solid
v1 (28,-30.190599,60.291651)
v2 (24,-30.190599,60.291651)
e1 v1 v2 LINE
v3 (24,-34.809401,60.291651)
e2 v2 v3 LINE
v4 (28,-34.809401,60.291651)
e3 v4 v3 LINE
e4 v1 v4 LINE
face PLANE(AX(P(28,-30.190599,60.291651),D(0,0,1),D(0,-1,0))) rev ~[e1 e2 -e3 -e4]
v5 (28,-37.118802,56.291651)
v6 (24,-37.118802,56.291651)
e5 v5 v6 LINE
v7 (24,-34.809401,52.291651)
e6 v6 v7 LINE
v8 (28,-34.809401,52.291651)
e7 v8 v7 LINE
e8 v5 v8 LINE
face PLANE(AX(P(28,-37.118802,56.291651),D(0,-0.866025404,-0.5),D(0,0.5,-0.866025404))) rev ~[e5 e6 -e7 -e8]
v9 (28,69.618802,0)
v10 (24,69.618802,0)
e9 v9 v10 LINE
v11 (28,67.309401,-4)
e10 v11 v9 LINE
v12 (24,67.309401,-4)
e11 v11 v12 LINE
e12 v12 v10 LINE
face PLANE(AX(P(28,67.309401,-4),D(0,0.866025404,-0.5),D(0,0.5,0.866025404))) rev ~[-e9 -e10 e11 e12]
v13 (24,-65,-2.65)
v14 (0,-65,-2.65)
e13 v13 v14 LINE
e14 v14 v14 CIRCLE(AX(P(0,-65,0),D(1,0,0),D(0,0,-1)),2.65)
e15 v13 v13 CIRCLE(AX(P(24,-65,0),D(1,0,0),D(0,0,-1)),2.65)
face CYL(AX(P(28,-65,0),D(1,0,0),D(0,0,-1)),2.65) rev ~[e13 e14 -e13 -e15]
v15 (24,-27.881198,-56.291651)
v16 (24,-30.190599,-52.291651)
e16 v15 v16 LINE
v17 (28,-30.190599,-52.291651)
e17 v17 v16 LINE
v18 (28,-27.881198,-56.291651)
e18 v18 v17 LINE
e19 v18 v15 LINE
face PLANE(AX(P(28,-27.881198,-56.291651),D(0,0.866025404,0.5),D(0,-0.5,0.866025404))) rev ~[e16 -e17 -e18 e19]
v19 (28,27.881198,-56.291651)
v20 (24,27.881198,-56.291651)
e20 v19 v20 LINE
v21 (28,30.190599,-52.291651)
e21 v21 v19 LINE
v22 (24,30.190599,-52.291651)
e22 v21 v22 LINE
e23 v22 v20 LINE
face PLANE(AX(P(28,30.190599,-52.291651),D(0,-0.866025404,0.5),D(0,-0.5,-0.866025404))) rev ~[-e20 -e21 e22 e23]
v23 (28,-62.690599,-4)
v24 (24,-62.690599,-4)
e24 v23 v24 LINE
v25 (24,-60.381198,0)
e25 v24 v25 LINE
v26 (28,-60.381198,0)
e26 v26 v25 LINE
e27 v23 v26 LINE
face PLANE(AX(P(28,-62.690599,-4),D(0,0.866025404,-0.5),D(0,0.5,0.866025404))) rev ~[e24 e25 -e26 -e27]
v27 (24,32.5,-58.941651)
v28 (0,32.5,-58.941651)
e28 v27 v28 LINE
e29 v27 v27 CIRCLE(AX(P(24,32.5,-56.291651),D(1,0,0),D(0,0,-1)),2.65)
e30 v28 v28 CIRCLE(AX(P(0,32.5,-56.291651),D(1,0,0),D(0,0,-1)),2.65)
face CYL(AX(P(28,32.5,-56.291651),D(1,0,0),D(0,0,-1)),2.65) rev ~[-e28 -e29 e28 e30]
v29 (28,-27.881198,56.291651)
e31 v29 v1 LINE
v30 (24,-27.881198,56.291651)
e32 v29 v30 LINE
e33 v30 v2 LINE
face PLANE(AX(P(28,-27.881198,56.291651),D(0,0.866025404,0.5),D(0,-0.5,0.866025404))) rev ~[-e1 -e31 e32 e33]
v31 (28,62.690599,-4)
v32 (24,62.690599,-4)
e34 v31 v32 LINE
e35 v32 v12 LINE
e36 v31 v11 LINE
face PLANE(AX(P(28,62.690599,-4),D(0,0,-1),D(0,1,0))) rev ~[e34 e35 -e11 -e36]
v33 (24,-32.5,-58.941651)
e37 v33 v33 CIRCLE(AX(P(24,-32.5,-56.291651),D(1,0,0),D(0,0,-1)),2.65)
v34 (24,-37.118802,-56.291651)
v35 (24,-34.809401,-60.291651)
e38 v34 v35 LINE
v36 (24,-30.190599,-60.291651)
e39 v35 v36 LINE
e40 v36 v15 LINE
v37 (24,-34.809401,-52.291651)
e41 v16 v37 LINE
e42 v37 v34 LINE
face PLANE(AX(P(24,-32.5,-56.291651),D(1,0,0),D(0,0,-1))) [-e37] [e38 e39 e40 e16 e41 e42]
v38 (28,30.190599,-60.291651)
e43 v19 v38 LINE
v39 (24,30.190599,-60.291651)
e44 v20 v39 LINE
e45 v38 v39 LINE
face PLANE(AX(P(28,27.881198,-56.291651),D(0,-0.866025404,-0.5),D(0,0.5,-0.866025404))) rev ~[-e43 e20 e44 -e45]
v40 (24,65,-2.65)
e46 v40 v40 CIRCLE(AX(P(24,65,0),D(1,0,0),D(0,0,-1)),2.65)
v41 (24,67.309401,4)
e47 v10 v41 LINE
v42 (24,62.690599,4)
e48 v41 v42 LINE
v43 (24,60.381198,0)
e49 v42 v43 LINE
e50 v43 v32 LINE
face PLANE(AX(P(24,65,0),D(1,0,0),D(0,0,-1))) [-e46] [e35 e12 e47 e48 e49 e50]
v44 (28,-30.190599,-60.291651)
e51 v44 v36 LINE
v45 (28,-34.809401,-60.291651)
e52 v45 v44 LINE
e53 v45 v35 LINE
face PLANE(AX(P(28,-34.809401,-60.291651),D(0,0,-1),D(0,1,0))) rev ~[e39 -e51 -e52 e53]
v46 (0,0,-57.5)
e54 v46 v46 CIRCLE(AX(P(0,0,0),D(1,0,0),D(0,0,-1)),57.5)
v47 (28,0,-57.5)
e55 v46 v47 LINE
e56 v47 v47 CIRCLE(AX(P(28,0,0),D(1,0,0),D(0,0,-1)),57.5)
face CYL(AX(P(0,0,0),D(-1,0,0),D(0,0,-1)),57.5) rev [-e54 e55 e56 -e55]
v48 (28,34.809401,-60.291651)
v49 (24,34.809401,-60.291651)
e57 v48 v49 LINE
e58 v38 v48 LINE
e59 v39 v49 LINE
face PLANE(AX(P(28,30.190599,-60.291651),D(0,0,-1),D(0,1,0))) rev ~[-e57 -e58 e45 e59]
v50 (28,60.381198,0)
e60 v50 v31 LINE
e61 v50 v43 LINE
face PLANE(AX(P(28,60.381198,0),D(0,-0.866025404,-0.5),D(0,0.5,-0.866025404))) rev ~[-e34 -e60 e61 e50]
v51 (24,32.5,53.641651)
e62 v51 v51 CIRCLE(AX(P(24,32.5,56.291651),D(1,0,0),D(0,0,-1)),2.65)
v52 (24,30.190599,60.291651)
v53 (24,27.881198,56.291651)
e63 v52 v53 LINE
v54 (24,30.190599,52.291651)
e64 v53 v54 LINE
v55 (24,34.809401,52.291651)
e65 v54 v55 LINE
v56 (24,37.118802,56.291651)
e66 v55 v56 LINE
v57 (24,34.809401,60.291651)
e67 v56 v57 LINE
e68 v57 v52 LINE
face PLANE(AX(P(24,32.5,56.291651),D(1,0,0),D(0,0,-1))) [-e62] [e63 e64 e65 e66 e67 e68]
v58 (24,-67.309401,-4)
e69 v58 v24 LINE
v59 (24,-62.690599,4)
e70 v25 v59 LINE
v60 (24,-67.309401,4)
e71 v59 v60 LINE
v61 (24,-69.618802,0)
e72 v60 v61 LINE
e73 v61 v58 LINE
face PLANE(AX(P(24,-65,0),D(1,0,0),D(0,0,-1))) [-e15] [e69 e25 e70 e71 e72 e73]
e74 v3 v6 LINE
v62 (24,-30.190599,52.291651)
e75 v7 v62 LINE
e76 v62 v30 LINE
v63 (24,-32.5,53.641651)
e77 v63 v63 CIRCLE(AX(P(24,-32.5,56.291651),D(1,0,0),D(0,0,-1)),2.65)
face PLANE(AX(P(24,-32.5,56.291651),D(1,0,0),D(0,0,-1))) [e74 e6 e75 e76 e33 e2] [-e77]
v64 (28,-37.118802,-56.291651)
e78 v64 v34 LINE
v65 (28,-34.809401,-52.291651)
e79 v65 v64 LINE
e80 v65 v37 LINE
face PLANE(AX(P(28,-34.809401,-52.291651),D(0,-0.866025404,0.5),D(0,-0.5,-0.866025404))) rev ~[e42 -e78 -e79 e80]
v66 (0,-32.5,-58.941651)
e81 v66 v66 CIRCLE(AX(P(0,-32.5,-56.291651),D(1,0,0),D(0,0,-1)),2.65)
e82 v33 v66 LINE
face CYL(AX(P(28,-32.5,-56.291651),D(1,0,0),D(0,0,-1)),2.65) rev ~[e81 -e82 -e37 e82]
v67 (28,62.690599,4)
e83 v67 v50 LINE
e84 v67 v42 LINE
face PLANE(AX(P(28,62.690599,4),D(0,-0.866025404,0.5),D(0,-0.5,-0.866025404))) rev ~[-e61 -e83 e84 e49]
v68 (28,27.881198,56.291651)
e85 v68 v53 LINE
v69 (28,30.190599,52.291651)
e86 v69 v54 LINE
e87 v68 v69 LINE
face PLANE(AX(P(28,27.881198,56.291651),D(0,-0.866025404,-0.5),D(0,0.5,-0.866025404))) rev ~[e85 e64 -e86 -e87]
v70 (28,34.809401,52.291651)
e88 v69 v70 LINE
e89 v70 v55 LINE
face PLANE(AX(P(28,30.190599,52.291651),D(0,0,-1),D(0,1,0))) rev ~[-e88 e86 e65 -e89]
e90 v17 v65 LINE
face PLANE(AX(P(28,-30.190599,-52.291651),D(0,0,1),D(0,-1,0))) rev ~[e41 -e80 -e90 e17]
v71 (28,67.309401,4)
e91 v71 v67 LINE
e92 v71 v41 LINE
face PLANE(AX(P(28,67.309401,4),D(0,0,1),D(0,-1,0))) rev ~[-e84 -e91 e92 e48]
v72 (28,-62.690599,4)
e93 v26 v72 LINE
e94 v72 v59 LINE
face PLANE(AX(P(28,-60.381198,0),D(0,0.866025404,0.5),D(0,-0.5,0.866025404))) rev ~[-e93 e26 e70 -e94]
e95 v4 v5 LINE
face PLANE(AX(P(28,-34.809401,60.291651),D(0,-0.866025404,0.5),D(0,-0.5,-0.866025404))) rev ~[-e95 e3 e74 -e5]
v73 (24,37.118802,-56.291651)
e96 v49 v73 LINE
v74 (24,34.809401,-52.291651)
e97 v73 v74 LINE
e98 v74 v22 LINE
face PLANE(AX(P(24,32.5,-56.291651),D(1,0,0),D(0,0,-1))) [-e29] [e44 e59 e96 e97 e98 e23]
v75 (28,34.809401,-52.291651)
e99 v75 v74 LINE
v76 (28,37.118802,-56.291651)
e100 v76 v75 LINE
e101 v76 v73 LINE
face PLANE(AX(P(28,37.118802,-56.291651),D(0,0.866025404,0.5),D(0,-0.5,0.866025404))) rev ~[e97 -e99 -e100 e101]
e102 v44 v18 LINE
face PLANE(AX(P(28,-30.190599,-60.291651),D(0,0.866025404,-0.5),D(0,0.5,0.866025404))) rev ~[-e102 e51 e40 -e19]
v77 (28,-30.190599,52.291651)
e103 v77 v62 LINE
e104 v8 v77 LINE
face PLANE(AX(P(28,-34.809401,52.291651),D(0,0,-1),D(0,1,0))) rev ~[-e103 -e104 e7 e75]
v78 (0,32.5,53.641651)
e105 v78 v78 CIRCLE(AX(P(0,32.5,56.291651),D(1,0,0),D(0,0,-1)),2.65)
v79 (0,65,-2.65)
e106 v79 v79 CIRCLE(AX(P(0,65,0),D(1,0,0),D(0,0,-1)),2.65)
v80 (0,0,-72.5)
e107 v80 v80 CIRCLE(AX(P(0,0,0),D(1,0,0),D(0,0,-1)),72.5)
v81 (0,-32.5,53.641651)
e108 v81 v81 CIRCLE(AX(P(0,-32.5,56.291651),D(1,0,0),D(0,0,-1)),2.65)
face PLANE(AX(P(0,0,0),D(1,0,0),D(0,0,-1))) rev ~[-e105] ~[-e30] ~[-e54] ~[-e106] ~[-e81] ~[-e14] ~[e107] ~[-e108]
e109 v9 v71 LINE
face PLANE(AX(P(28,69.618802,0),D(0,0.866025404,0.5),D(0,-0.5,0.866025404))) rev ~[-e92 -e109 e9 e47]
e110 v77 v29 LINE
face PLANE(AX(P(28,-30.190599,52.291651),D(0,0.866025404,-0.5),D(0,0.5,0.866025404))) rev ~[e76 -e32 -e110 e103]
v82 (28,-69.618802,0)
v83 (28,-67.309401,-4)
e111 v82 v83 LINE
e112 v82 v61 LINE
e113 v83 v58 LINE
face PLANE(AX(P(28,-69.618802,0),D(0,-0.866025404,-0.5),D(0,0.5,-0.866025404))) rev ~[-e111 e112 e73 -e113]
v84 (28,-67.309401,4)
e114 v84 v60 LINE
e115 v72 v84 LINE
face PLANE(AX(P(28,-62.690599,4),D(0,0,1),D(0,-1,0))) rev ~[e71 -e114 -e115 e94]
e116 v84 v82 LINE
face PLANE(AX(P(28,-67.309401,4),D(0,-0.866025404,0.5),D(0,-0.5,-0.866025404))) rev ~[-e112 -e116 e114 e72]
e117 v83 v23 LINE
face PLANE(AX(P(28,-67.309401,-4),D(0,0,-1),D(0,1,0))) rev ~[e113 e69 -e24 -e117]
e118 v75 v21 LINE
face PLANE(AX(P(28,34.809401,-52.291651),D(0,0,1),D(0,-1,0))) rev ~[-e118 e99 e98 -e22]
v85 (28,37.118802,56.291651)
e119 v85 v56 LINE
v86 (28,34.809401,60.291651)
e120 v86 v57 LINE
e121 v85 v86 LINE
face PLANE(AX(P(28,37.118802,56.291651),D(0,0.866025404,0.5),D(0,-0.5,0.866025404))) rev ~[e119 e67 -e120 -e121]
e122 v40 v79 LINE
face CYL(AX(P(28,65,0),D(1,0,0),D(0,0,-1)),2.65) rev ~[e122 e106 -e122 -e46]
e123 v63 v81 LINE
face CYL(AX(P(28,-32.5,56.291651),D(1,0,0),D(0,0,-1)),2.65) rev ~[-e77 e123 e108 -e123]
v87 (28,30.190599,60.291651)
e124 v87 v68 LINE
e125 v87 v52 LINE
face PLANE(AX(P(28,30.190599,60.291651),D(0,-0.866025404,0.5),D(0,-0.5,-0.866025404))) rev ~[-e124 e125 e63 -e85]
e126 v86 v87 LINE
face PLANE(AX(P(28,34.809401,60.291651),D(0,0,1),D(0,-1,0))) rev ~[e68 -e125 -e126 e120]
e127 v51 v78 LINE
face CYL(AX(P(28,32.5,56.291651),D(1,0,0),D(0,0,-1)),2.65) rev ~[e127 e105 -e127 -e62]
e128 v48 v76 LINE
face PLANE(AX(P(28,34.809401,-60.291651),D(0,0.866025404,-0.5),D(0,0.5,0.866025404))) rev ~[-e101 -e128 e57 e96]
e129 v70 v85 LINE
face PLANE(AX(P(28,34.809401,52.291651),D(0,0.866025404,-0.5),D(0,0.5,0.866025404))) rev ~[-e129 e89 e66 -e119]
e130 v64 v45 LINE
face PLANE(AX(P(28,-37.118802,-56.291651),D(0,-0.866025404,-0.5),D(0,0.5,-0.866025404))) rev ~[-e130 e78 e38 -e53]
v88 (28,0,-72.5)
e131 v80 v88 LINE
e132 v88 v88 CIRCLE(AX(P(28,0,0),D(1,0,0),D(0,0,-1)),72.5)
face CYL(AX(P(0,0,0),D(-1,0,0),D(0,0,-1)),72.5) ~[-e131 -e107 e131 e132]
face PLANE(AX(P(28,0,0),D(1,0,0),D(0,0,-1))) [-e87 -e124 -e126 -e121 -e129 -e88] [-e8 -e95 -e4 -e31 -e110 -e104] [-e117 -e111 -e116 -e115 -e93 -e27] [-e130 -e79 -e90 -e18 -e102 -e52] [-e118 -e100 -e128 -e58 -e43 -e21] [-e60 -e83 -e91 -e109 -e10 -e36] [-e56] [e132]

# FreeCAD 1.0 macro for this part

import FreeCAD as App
import Part
import Sketcher
Q = App.Units.Quantity

doc = App.newDocument("Part")
body = doc.addObject("PartDesign::Body", "Body")

# Sketch on YZ plane
sketch1 = doc.addObject("Sketcher::SketchObject", "Sketch")
body.addObject(sketch1)
sketch1.AttachmentSupport = (doc.YZ_Plane, [""])
sketch1.MapMode = "FlatFace"
sketch1.addGeometry([
    Part.Circle(App.Vector(0, 0, 0), App.Vector(0, 0, 1), 72.5),
    Part.Circle(App.Vector(0, 0, 0), App.Vector(0, 0, 1), 57.5),
], False)
sketch1.addConstraint([
    Sketcher.Constraint("Coincident", 0, 3, -1, 1),
    Sketcher.Constraint("Coincident", 1, 3, -1, 1),
    Sketcher.Constraint("Diameter", 0, 145.0),
    Sketcher.Constraint("Diameter", 1, 115.0),
])
pad1 = doc.addObject("PartDesign::Pad", "Pad")
body.addObject(pad1)
pad1.Profile = sketch1
pad1.Length = 28

# Sketch on YZ plane
sketch2 = doc.addObject("Sketcher::SketchObject", "Sketch001")
body.addObject(sketch2)
sketch2.AttachmentSupport = (doc.YZ_Plane, [""])
sketch2.MapMode = "FlatFace"
sketch2.AttachmentOffset = App.Placement(App.Vector(0, 0, 28), App.Rotation())
sketch2.addGeometry([
    Part.LineSegment(App.Vector(30.190599, -52.291651, 0), App.Vector(27.881198, -56.291651, 0)),  # 0
    Part.LineSegment(App.Vector(27.881198, -56.291651, 0), App.Vector(30.190599, -60.291651, 0)),  # 1
    Part.LineSegment(App.Vector(30.190599, -60.291651, 0), App.Vector(34.809401, -60.291651, 0)),  # 2
    Part.LineSegment(App.Vector(34.809401, -60.291651, 0), App.Vector(37.118802, -56.291651, 0)),  # 3
    Part.LineSegment(App.Vector(37.118802, -56.291651, 0), App.Vector(34.809401, -52.291651, 0)),  # 4
    Part.LineSegment(App.Vector(34.809401, -52.291651, 0), App.Vector(30.190599, -52.291651, 0)),  # 5
    Part.LineSegment(App.Vector(60.381198, 0, 0), App.Vector(62.690599, -4, 0)),  # 6
    Part.LineSegment(App.Vector(62.690599, -4, 0), App.Vector(67.309401, -4, 0)),  # 7
    Part.LineSegment(App.Vector(67.309401, -4, 0), App.Vector(69.618802, 0, 0)),  # 8
    Part.LineSegment(App.Vector(69.618802, 0, 0), App.Vector(67.309401, 4, 0)),  # 9
    Part.LineSegment(App.Vector(67.309401, 4, 0), App.Vector(62.690599, 4, 0)),  # 10
    Part.LineSegment(App.Vector(62.690599, 4, 0), App.Vector(60.381198, 0, 0)),  # 11
    Part.LineSegment(App.Vector(-30.190599, -52.291651, 0), App.Vector(-34.809401, -52.291651, 0)),  # 12
    Part.LineSegment(App.Vector(-34.809401, -52.291651, 0), App.Vector(-37.118802, -56.291651, 0)),  # 13
    Part.LineSegment(App.Vector(-37.118802, -56.291651, 0), App.Vector(-34.809401, -60.291651, 0)),  # 14
    Part.LineSegment(App.Vector(-34.809401, -60.291651, 0), App.Vector(-30.190599, -60.291651, 0)),  # 15
    Part.LineSegment(App.Vector(-30.190599, -60.291651, 0), App.Vector(-27.881198, -56.291651, 0)),  # 16
    Part.LineSegment(App.Vector(-27.881198, -56.291651, 0), App.Vector(-30.190599, -52.291651, 0)),  # 17
    Part.LineSegment(App.Vector(-60.381198, 0, 0), App.Vector(-62.690599, 4, 0)),  # 18
    Part.LineSegment(App.Vector(-62.690599, 4, 0), App.Vector(-67.309401, 4, 0)),  # 19
    Part.LineSegment(App.Vector(-67.309401, 4, 0), App.Vector(-69.618802, 0, 0)),  # 20
    Part.LineSegment(App.Vector(-69.618802, 0, 0), App.Vector(-67.309401, -4, 0)),  # 21
    Part.LineSegment(App.Vector(-67.309401, -4, 0), App.Vector(-62.690599, -4, 0)),  # 22
    Part.LineSegment(App.Vector(-62.690599, -4, 0), App.Vector(-60.381198, 0, 0)),  # 23
    Part.LineSegment(App.Vector(-30.190599, 52.291651, 0), App.Vector(-27.881198, 56.291651, 0)),  # 24
    Part.LineSegment(App.Vector(-27.881198, 56.291651, 0), App.Vector(-30.190599, 60.291651, 0)),  # 25
    Part.LineSegment(App.Vector(-30.190599, 60.291651, 0), App.Vector(-34.809401, 60.291651, 0)),  # 26
    Part.LineSegment(App.Vector(-34.809401, 60.291651, 0), App.Vector(-37.118802, 56.291651, 0)),  # 27
    Part.LineSegment(App.Vector(-37.118802, 56.291651, 0), App.Vector(-34.809401, 52.291651, 0)),  # 28
    Part.LineSegment(App.Vector(-34.809401, 52.291651, 0), App.Vector(-30.190599, 52.291651, 0)),  # 29
    Part.LineSegment(App.Vector(30.190599, 52.291651, 0), App.Vector(34.809401, 52.291651, 0)),  # 30
    Part.LineSegment(App.Vector(34.809401, 52.291651, 0), App.Vector(37.118802, 56.291651, 0)),  # 31
    Part.LineSegment(App.Vector(37.118802, 56.291651, 0), App.Vector(34.809401, 60.291651, 0)),  # 32
    Part.LineSegment(App.Vector(34.809401, 60.291651, 0), App.Vector(30.190599, 60.291651, 0)),  # 33
    Part.LineSegment(App.Vector(30.190599, 60.291651, 0), App.Vector(27.881198, 56.291651, 0)),  # 34
    Part.LineSegment(App.Vector(27.881198, 56.291651, 0), App.Vector(30.190599, 52.291651, 0)),  # 35
], False)
sketch2.addConstraint([
    Sketcher.Constraint("Coincident", 0, 2, 1, 1),
    Sketcher.Constraint("Coincident", 1, 2, 2, 1),
    Sketcher.Constraint("Coincident", 2, 2, 3, 1),
    Sketcher.Constraint("Coincident", 3, 2, 4, 1),
    Sketcher.Constraint("Coincident", 4, 2, 5, 1),
    Sketcher.Constraint("Coincident", 5, 2, 0, 1),
    Sketcher.Constraint("Coincident", 6, 2, 7, 1),
    Sketcher.Constraint("Coincident", 7, 2, 8, 1),
    Sketcher.Constraint("Coincident", 8, 2, 9, 1),
    Sketcher.Constraint("Coincident", 9, 2, 10, 1),
    Sketcher.Constraint("Coincident", 10, 2, 11, 1),
    Sketcher.Constraint("Coincident", 11, 2, 6, 1),
    Sketcher.Constraint("Coincident", 12, 2, 13, 1),
    Sketcher.Constraint("Coincident", 13, 2, 14, 1),
    Sketcher.Constraint("Coincident", 14, 2, 15, 1),
    Sketcher.Constraint("Coincident", 15, 2, 16, 1),
    Sketcher.Constraint("Coincident", 16, 2, 17, 1),
    Sketcher.Constraint("Coincident", 17, 2, 12, 1),
    Sketcher.Constraint("Coincident", 18, 2, 19, 1),
    Sketcher.Constraint("Coincident", 19, 2, 20, 1),
    Sketcher.Constraint("Coincident", 20, 2, 21, 1),
    Sketcher.Constraint("Coincident", 21, 2, 22, 1),
    Sketcher.Constraint("Coincident", 22, 2, 23, 1),
    Sketcher.Constraint("Coincident", 23, 2, 18, 1),
    Sketcher.Constraint("Coincident", 24, 2, 25, 1),
    Sketcher.Constraint("Coincident", 25, 2, 26, 1),
    Sketcher.Constraint("Coincident", 26, 2, 27, 1),
    Sketcher.Constraint("Coincident", 27, 2, 28, 1),
    Sketcher.Constraint("Coincident", 28, 2, 29, 1),
    Sketcher.Constraint("Coincident", 29, 2, 24, 1),
    Sketcher.Constraint("Coincident", 30, 2, 31, 1),
    Sketcher.Constraint("Coincident", 31, 2, 32, 1),
    Sketcher.Constraint("Coincident", 32, 2, 33, 1),
    Sketcher.Constraint("Coincident", 33, 2, 34, 1),
    Sketcher.Constraint("Coincident", 34, 2, 35, 1),
    Sketcher.Constraint("Coincident", 35, 2, 30, 1),
    Sketcher.Constraint("Horizontal", 2),
    Sketcher.Constraint("Horizontal", 5),
    Sketcher.Constraint("Horizontal", 7),
    Sketcher.Constraint("Horizontal", 10),
    Sketcher.Constraint("Horizontal", 12),
    Sketcher.Constraint("Horizontal", 15),
    Sketcher.Constraint("Horizontal", 19),
    Sketcher.Constraint("Horizontal", 22),
    Sketcher.Constraint("Horizontal", 26),
    Sketcher.Constraint("Horizontal", 29),
    Sketcher.Constraint("Horizontal", 30),
    Sketcher.Constraint("Horizontal", 33),
    Sketcher.Constraint("Symmetric", 6, 2, 18, 2, -1, 1),
    Sketcher.Constraint("Symmetric", 8, 2, 20, 2, -1, 1),
    Sketcher.Constraint("Symmetric", 9, 2, 21, 2, -1, 1),
    Sketcher.Constraint("Symmetric", 11, 2, 23, 2, -1, 1),
    Sketcher.Constraint("Symmetric", 0, 2, 24, 2, -1, 1),
    Sketcher.Constraint("Symmetric", 1, 2, 25, 2, -1, 1),
    Sketcher.Constraint("Symmetric", 3, 2, 27, 2, -1, 1),
    Sketcher.Constraint("Symmetric", 4, 2, 28, 2, -1, 1),
    Sketcher.Constraint("Symmetric", 12, 2, 30, 2, -1, 1),
    Sketcher.Constraint("Symmetric", 13, 2, 31, 2, -1, 1),
    Sketcher.Constraint("Symmetric", 14, 2, 32, 2, -1, 1),
    Sketcher.Constraint("Symmetric", 16, 2, 34, 2, -1, 1),
    Sketcher.Constraint("Symmetric", 4, 2, 12, 2, -2),
    Sketcher.Constraint("Symmetric", 3, 2, 13, 2, -2),
    Sketcher.Constraint("Symmetric", 2, 2, 14, 2, -2),
    Sketcher.Constraint("Symmetric", 0, 2, 16, 2, -2),
    Sketcher.Constraint("Symmetric", 10, 2, 18, 2, -2),
    Sketcher.Constraint("PointOnObject", 8, 2, -1),
    Sketcher.Constraint("PointOnObject", 11, 2, -1),
    Sketcher.Constraint("Parallel", 0, 3),
    Sketcher.Constraint("Parallel", 1, 4),
    Sketcher.Constraint("Parallel", 4, 6),
    Sketcher.Constraint("Parallel", 3, 8),
    Sketcher.Constraint("Parallel", 6, 9),
    Sketcher.Constraint("Parallel", 8, 11),
    Sketcher.Constraint("Parallel", 13, 16),
    Sketcher.Constraint("Parallel", 14, 17),
    Sketcher.Constraint("Parallel", 16, 20),
    Sketcher.Constraint("Parallel", 20, 23),
    Sketcher.Constraint("Parallel", 23, 24),
    Sketcher.Constraint("Parallel", 24, 27),
    Sketcher.Constraint("Parallel", 31, 34),
    Sketcher.Constraint("Parallel", 32, 35),
    Sketcher.Constraint("Horizontal", 0, 2, 3, 2),
    Sketcher.Constraint("Vertical", 2, 2, 4, 2),
    Sketcher.Constraint("Equal", 5, 7),
    Sketcher.Constraint("Equal", 4, 6),
    Sketcher.Constraint("Angle", 0, Q("-120 deg")),
    Sketcher.Constraint("DistanceY", 6, 2, -1, 1, 4.0),
    Sketcher.Constraint("DistanceX", 12, 2, 5, 2, 65.0),
    Sketcher.Constraint("DistanceX", 5, 2, 6, 2, 32.5),
    Sketcher.Constraint("DistanceX", -1, 1, 1, 2, 30.190599),
    Sketcher.Constraint("DistanceY", 0, 2, -1, 1, 56.291651),
])
pocket1 = doc.addObject("PartDesign::Pocket", "Pocket")
body.addObject(pocket1)
pocket1.Profile = sketch2
pocket1.Length = 4

# Sketch on YZ plane
sketch3 = doc.addObject("Sketcher::SketchObject", "Sketch002")
body.addObject(sketch3)
sketch3.AttachmentSupport = (doc.YZ_Plane, [""])
sketch3.MapMode = "FlatFace"
sketch3.AttachmentOffset = App.Placement(App.Vector(0, 0, 28), App.Rotation())
sketch3.addGeometry(Part.Circle(App.Vector(65, 0, 0), App.Vector(0, 0, 1), 2.65), False)
sketch3.addConstraint([
    Sketcher.Constraint("PointOnObject", 0, 3, -1),
    Sketcher.Constraint("Diameter", 0, 5.3),
    Sketcher.Constraint("DistanceX", -1, 1, 0, 3, 65.0),
])
pocket2 = doc.addObject("PartDesign::Pocket", "Pocket001")
body.addObject(pocket2)
pocket2.Profile = sketch3
pocket2.Length = 28

# Sketch on YZ plane
sketch4 = doc.addObject("Sketcher::SketchObject", "Sketch003")
body.addObject(sketch4)
sketch4.AttachmentSupport = (doc.YZ_Plane, [""])
sketch4.MapMode = "FlatFace"
sketch4.AttachmentOffset = App.Placement(App.Vector(0, 0, 28), App.Rotation())
sketch4.addGeometry(Part.Circle(App.Vector(32.5, -56.291651, 0), App.Vector(0, 0, 1), 2.65), False)
sketch4.addConstraint([
    Sketcher.Constraint("Diameter", 0, 5.3),
    Sketcher.Constraint("DistanceX", -1, 1, 0, 3, 32.5),
    Sketcher.Constraint("DistanceY", 0, 3, -1, 1, 56.291651),
])
pocket3 = doc.addObject("PartDesign::Pocket", "Pocket002")
body.addObject(pocket3)
pocket3.Profile = sketch4
pocket3.Length = 28

# Sketch on YZ plane
sketch5 = doc.addObject("Sketcher::SketchObject", "Sketch004")
body.addObject(sketch5)
sketch5.AttachmentSupport = (doc.YZ_Plane, [""])
sketch5.MapMode = "FlatFace"
sketch5.AttachmentOffset = App.Placement(App.Vector(0, 0, 28), App.Rotation())
sketch5.addGeometry(Part.Circle(App.Vector(-32.5, -56.291651, 0), App.Vector(0, 0, 1), 2.65), False)
sketch5.addConstraint([
    Sketcher.Constraint("Diameter", 0, 5.3),
    Sketcher.Constraint("DistanceX", 0, 3, -1, 1, 32.5),
    Sketcher.Constraint("DistanceY", 0, 3, -1, 1, 56.291651),
])
pocket4 = doc.addObject("PartDesign::Pocket", "Pocket003")
body.addObject(pocket4)
pocket4.Profile = sketch5
pocket4.Length = 28

# Sketch on YZ plane
sketch6 = doc.addObject("Sketcher::SketchObject", "Sketch005")
body.addObject(sketch6)
sketch6.AttachmentSupport = (doc.YZ_Plane, [""])
sketch6.MapMode = "FlatFace"
sketch6.AttachmentOffset = App.Placement(App.Vector(0, 0, 28), App.Rotation())
sketch6.addGeometry(Part.Circle(App.Vector(-65, 0, 0), App.Vector(0, 0, 1), 2.65), False)
sketch6.addConstraint([
    Sketcher.Constraint("PointOnObject", 0, 3, -1),
    Sketcher.Constraint("Diameter", 0, 5.3),
    Sketcher.Constraint("DistanceX", 0, 3, -1, 1, 65.0),
])
pocket5 = doc.addObject("PartDesign::Pocket", "Pocket004")
body.addObject(pocket5)
pocket5.Profile = sketch6
pocket5.Length = 28

# Sketch on YZ plane
sketch7 = doc.addObject("Sketcher::SketchObject", "Sketch006")
body.addObject(sketch7)
sketch7.AttachmentSupport = (doc.YZ_Plane, [""])
sketch7.MapMode = "FlatFace"
sketch7.AttachmentOffset = App.Placement(App.Vector(0, 0, 28), App.Rotation())
sketch7.addGeometry(Part.Circle(App.Vector(-32.5, 56.291651, 0), App.Vector(0, 0, 1), 2.65), False)
sketch7.addConstraint([
    Sketcher.Constraint("Diameter", 0, 5.3),
    Sketcher.Constraint("DistanceX", 0, 3, -1, 1, 32.5),
    Sketcher.Constraint("DistanceY", -1, 1, 0, 3, 56.291651),
])
pocket6 = doc.addObject("PartDesign::Pocket", "Pocket005")
body.addObject(pocket6)
pocket6.Profile = sketch7
pocket6.Length = 28

# Sketch on YZ plane
sketch8 = doc.addObject("Sketcher::SketchObject", "Sketch007")
body.addObject(sketch8)
sketch8.AttachmentSupport = (doc.YZ_Plane, [""])
sketch8.MapMode = "FlatFace"
sketch8.AttachmentOffset = App.Placement(App.Vector(0, 0, 28), App.Rotation())
sketch8.addGeometry(Part.Circle(App.Vector(32.5, 56.291651, 0), App.Vector(0, 0, 1), 2.65), False)
sketch8.addConstraint([
    Sketcher.Constraint("Diameter", 0, 5.3),
    Sketcher.Constraint("DistanceX", -1, 1, 0, 3, 32.5),
    Sketcher.Constraint("DistanceY", -1, 1, 0, 3, 56.291651),
])
pocket7 = doc.addObject("PartDesign::Pocket", "Pocket006")
body.addObject(pocket7)
pocket7.Profile = sketch8
pocket7.Length = 28

doc.recompute()
